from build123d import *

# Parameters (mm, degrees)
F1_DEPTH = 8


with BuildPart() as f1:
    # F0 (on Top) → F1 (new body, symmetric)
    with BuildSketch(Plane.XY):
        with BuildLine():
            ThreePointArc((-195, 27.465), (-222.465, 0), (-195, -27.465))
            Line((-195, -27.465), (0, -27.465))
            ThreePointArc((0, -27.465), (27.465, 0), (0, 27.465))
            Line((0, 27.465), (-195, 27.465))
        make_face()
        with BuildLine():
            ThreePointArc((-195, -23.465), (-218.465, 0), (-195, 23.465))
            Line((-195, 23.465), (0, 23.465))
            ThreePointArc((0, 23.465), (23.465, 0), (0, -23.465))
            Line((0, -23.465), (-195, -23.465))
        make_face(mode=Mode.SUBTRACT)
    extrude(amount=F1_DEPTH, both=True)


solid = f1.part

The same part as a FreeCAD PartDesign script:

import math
import FreeCAD as App
import Part
import Sketcher
Q = App.Units.Quantity

doc = App.newDocument("Part")
params = doc.addObject("Spreadsheet::Sheet", "Params")
for row, (alias, value) in enumerate([
    ("sketch1_width", "195 mm"),
    ("pad1_length", "16 mm"),
], start=1):
    params.set(f"A{row}", alias)
    params.set(f"B{row}", "=" + value)
    params.setAlias(f"B{row}", alias)

body = doc.addObject("PartDesign::Body", "Body")

sketch1 = doc.addObject("Sketcher::SketchObject", "Sketch")
body.addObject(sketch1)
sketch1.AttachmentSupport = (doc.XY_Plane, [""])
sketch1.MapMode = "FlatFace"
sketch1.addGeometry(Part.ArcOfCircle(Part.Circle(App.Vector(-195, 0, 0), App.Vector(0, 0, 1), 27), math.radians(90), math.radians(270)), False)
sketch1.addGeometry(Part.LineSegment(App.Vector(-195, -27, 0), App.Vector(0, -27, 0)), False)
sketch1.addGeometry(Part.ArcOfCircle(Part.Circle(App.Vector(0, 0, 0), App.Vector(0, 0, 1), 27), math.radians(-90), math.radians(90)), False)
sketch1.addGeometry(Part.LineSegment(App.Vector(0, 27, 0), App.Vector(-195, 27, 0)), False)
sketch1.addGeometry(Part.LineSegment(App.Vector(0, -23, 0), App.Vector(-195, -23, 0)), False)
sketch1.addGeometry(Part.ArcOfCircle(Part.Circle(App.Vector(-195, 0, 0), App.Vector(0, 0, 1), 23), math.radians(90), math.radians(270)), False)
sketch1.addGeometry(Part.LineSegment(App.Vector(-195, 23, 0), App.Vector(0, 23, 0)), False)
sketch1.addGeometry(Part.ArcOfCircle(Part.Circle(App.Vector(0, 0, 0), App.Vector(0, 0, 1), 23), math.radians(-90), math.radians(90)), False)
sketch1.addConstraint(Sketcher.Constraint("Tangent", 0, 2, 1, 1))
sketch1.addConstraint(Sketcher.Constraint("Tangent", 1, 2, 2, 1))
sketch1.addConstraint(Sketcher.Constraint("Tangent", 2, 2, 3, 1))
sketch1.addConstraint(Sketcher.Constraint("Tangent", 3, 2, 0, 1))
sketch1.addConstraint(Sketcher.Constraint("Tangent", 4, 2, 5, 2))
sketch1.addConstraint(Sketcher.Constraint("Tangent", 5, 1, 6, 1))
sketch1.addConstraint(Sketcher.Constraint("Tangent", 6, 2, 7, 2))
sketch1.addConstraint(Sketcher.Constraint("Tangent", 7, 1, 4, 1))
sketch1.addConstraint(Sketcher.Constraint("Horizontal", 1))
sketch1.addConstraint(Sketcher.Constraint("Horizontal", 3))
sketch1.addConstraint(Sketcher.Constraint("Horizontal", 4))
sketch1.addConstraint(Sketcher.Constraint("Horizontal", 6))
sketch1.addConstraint(Sketcher.Constraint("Coincident", 2, 3, -1, 1))
sketch1.addConstraint(Sketcher.Constraint("Coincident", 7, 3, -1, 1))
sketch1.addConstraint(Sketcher.Constraint("Vertical", 5, 3, 0, 2))
sketch1.addConstraint(Sketcher.Constraint("DistanceX", 1, 1, 1, 2, Q("195 mm")))
sketch1.addConstraint(Sketcher.Constraint("Radius", 0, Q("27.465 mm")))
sketch1.addConstraint(Sketcher.Constraint("Radius", 5, Q("23.465 mm")))
sketch1.setExpression("Constraints[15]", "Params.sketch1_width")
pad1 = doc.addObject("PartDesign::Pad", "Pad")
body.addObject(pad1)
pad1.Profile = sketch1
pad1.setExpression("Length", "Params.pad1_length")
pad1.Midplane = True

doc.recompute()
